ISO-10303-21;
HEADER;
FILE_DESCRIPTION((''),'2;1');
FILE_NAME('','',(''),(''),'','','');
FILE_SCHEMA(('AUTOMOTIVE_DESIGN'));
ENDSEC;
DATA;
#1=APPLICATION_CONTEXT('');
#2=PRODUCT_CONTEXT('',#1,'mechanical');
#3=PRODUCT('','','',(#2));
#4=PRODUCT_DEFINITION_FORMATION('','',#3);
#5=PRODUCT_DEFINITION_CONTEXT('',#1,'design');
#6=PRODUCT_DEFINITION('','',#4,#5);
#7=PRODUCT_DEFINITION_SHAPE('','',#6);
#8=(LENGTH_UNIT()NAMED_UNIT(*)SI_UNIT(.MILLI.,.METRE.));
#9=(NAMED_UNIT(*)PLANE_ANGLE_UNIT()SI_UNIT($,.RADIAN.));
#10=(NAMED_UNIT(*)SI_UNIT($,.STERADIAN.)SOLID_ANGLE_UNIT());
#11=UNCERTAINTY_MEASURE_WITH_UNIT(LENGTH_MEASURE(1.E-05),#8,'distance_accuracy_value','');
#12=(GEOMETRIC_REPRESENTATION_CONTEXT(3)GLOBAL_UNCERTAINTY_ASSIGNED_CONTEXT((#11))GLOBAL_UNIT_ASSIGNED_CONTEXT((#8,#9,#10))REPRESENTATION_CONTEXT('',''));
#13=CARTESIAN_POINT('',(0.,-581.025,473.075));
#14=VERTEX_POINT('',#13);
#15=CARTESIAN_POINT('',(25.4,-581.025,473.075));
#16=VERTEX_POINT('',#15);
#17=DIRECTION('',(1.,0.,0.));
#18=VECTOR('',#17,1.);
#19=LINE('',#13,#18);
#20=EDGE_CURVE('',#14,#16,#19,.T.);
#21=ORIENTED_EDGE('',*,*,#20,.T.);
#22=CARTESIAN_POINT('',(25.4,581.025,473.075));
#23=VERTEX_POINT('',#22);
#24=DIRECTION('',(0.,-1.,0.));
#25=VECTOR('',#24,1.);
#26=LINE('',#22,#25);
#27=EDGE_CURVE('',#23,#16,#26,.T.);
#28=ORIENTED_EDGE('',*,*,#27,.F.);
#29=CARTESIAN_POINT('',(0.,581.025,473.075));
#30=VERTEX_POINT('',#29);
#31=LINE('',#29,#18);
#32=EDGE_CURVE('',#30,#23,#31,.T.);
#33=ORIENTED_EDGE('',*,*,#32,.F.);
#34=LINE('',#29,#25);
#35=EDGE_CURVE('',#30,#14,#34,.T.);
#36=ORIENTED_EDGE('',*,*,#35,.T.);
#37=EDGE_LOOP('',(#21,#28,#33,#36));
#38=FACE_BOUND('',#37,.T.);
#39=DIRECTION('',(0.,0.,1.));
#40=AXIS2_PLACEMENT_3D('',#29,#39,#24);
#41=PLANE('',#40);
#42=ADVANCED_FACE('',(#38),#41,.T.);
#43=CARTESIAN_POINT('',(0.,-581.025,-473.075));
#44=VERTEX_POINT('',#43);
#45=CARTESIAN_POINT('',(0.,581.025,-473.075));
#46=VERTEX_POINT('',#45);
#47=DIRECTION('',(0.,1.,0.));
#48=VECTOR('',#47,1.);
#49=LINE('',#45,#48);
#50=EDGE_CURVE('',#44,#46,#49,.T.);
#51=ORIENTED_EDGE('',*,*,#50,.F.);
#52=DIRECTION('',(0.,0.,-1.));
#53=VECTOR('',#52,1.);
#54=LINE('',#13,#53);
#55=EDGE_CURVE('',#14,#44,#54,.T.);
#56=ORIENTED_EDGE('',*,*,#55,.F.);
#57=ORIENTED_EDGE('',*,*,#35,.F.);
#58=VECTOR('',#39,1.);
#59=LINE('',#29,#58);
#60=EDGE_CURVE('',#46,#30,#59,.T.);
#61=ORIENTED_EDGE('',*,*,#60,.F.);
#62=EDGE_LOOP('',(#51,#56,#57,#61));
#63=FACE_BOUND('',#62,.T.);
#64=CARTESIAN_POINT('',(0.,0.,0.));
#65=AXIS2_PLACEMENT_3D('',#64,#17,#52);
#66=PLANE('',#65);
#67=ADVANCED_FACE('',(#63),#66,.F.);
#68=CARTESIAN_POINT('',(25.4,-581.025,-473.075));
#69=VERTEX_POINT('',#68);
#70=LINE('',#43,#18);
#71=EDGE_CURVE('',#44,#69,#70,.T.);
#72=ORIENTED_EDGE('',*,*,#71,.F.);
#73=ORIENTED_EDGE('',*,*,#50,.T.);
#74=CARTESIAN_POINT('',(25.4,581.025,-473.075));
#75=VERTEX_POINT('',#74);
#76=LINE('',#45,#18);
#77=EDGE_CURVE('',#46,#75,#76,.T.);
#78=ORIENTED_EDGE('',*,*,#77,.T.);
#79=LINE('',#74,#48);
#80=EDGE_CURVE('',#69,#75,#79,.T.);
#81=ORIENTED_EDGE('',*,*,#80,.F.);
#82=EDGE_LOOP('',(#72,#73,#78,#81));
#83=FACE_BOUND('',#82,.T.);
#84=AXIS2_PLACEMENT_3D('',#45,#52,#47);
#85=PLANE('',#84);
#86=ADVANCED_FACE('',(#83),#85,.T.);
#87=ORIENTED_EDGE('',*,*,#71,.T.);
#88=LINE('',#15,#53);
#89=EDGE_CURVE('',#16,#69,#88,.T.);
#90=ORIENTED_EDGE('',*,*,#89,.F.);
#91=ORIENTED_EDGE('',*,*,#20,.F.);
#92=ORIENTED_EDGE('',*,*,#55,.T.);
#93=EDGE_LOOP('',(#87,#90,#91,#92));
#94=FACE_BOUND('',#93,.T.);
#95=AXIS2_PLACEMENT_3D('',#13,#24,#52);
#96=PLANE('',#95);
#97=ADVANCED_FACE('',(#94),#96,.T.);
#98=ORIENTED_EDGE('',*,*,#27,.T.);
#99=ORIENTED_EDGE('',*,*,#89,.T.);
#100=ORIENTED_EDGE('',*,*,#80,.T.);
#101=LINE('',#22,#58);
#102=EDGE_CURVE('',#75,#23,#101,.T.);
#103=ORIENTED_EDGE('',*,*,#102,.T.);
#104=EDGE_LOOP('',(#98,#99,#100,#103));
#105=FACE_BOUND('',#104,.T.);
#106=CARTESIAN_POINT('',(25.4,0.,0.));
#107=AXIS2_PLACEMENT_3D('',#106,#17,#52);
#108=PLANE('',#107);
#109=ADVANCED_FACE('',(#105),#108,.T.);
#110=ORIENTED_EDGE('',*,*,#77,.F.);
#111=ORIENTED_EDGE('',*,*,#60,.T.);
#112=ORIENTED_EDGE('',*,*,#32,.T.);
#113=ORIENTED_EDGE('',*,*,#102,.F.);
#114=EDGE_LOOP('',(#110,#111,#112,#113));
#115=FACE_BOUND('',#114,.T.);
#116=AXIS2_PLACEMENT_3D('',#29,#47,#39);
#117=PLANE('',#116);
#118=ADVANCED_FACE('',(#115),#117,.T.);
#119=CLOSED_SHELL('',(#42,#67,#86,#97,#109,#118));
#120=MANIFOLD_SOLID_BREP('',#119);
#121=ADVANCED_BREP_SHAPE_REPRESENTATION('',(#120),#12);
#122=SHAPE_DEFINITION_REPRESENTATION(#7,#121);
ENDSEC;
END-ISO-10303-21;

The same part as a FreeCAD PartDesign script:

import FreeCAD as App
import Part
import Sketcher
from FreeCAD import Vector
Q = App.Units.Quantity


def add_polygon(sketch, points):
    """Adds a closed chain of lines whose ends are joined by coincident constraints."""
    first, n = sketch.GeometryCount, len(points)
    for a, b in zip(points, points[1:] + points[:1]):
        sketch.addGeometry(Part.LineSegment(App.Vector(*a, 0), App.Vector(*b, 0)), False)
    for i in range(n):
        sketch.addConstraint(Sketcher.Constraint("Coincident", first + i, 2, first + (i + 1) % n, 1))

doc = App.newDocument("Part")
body = doc.addObject("PartDesign::Body", "Body")

# Sketch on YZ plane
sketch1 = doc.addObject("Sketcher::SketchObject", "Sketch")
body.addObject(sketch1)
sketch1.AttachmentSupport = (doc.YZ_Plane, [""])
sketch1.MapMode = "FlatFace"
add_polygon(sketch1, [(518, 410), (-518, 410), (-518, -410), (518, -410)])  # lines 0-3
sketch1.addConstraint([
    Sketcher.Constraint("Horizontal", 0),
    Sketcher.Constraint("Vertical", 1),
    Sketcher.Constraint("Horizontal", 2),
    Sketcher.Constraint("Vertical", 3),
    Sketcher.Constraint("Symmetric", 0, 2, 2, 2, -1, 1),
    Sketcher.Constraint("DistanceX", 0, 2, 0, 1, Q("40.75 in")),
    Sketcher.Constraint("DistanceY", 1, 2, 1, 1, Q("32.25 in")),
])
pad1 = doc.addObject("PartDesign::Pad", "Pad")
body.addObject(pad1)
pad1.Profile = sketch1
pad1.Length = Q("1 in")

# Sketch on YZ plane
sketch2 = doc.addObject("Sketcher::SketchObject", "Sketch001")
body.addObject(sketch2)
sketch2.AttachmentSupport = (doc.YZ_Plane, [""])
sketch2.MapMode = "FlatFace"
sketch2.AttachmentOffset = App.Placement(Vector(0, 0, 1 * 25.4), App.Rotation())
add_polygon(sketch2, [(556, 448), (-556, 448), (-556, -448), (556, -448)])  # lines 0-3
add_polygon(sketch2, [(-518, -410), (-518, 410), (518, 410), (518, -410)])  # lines 4-7
sketch2.addConstraint([
    Sketcher.Constraint("Horizontal", 0),
    Sketcher.Constraint("Vertical", 1),
    Sketcher.Constraint("Horizontal", 2),
    Sketcher.Constraint("Vertical", 3),
    Sketcher.Constraint("Vertical", 4),
    Sketcher.Constraint("Horizontal", 5),
    Sketcher.Constraint("Vertical", 6),
    Sketcher.Constraint("Horizontal", 7),
    Sketcher.Constraint("Symmetric", 0, 2, 2, 2, -1, 1),
    Sketcher.Constraint("Symmetric", 4, 2, 6, 2, -1, 1),
    Sketcher.Constraint("DistanceX", 0, 2, 0, 1, Q("43.75 in")),
    Sketcher.Constraint("DistanceX", 5, 1, 5, 2, Q("40.75 in")),
    Sketcher.Constraint("DistanceY", 1, 2, 1, 1, Q("35.25 in")),
    Sketcher.Constraint("DistanceY", 4, 1, 4, 2, Q("32.25 in")),
])
pad2 = doc.addObject("PartDesign::Pad", "Pad001")
body.addObject(pad2)
pad2.Profile = sketch2
pad2.Length = Q("1 in")
pad2.Reversed = True

# Sketch on YZ plane
sketch3 = doc.addObject("Sketcher::SketchObject", "Sketch002")
body.addObject(sketch3)
sketch3.AttachmentSupport = (doc.YZ_Plane, [""])
sketch3.MapMode = "FlatFace"
sketch3.AttachmentOffset = App.Placement(Vector(0, 0, 1 * 25.4), App.Rotation())
add_polygon(sketch3, [(581, 473), (-581, 473), (-581, -473), (581, -473)])  # lines 0-3
sketch3.addConstraint([
    Sketcher.Constraint("Horizontal", 0),
    Sketcher.Constraint("Vertical", 1),
    Sketcher.Constraint("Horizontal", 2),
    Sketcher.Constraint("Vertical", 3),
    Sketcher.Constraint("Symmetric", 0, 2, 2, 2, -1, 1),
    Sketcher.Constraint("DistanceX", 0, 2, 0, 1, Q("45.75 in")),
    Sketcher.Constraint("DistanceY", 1, 2, 1, 1, Q("37.25 in")),
])
pad3 = doc.addObject("PartDesign::Pad", "Pad002")
body.addObject(pad3)
pad3.Profile = sketch3
pad3.Length = Q("1 in")
pad3.Reversed = True

doc.recompute()
